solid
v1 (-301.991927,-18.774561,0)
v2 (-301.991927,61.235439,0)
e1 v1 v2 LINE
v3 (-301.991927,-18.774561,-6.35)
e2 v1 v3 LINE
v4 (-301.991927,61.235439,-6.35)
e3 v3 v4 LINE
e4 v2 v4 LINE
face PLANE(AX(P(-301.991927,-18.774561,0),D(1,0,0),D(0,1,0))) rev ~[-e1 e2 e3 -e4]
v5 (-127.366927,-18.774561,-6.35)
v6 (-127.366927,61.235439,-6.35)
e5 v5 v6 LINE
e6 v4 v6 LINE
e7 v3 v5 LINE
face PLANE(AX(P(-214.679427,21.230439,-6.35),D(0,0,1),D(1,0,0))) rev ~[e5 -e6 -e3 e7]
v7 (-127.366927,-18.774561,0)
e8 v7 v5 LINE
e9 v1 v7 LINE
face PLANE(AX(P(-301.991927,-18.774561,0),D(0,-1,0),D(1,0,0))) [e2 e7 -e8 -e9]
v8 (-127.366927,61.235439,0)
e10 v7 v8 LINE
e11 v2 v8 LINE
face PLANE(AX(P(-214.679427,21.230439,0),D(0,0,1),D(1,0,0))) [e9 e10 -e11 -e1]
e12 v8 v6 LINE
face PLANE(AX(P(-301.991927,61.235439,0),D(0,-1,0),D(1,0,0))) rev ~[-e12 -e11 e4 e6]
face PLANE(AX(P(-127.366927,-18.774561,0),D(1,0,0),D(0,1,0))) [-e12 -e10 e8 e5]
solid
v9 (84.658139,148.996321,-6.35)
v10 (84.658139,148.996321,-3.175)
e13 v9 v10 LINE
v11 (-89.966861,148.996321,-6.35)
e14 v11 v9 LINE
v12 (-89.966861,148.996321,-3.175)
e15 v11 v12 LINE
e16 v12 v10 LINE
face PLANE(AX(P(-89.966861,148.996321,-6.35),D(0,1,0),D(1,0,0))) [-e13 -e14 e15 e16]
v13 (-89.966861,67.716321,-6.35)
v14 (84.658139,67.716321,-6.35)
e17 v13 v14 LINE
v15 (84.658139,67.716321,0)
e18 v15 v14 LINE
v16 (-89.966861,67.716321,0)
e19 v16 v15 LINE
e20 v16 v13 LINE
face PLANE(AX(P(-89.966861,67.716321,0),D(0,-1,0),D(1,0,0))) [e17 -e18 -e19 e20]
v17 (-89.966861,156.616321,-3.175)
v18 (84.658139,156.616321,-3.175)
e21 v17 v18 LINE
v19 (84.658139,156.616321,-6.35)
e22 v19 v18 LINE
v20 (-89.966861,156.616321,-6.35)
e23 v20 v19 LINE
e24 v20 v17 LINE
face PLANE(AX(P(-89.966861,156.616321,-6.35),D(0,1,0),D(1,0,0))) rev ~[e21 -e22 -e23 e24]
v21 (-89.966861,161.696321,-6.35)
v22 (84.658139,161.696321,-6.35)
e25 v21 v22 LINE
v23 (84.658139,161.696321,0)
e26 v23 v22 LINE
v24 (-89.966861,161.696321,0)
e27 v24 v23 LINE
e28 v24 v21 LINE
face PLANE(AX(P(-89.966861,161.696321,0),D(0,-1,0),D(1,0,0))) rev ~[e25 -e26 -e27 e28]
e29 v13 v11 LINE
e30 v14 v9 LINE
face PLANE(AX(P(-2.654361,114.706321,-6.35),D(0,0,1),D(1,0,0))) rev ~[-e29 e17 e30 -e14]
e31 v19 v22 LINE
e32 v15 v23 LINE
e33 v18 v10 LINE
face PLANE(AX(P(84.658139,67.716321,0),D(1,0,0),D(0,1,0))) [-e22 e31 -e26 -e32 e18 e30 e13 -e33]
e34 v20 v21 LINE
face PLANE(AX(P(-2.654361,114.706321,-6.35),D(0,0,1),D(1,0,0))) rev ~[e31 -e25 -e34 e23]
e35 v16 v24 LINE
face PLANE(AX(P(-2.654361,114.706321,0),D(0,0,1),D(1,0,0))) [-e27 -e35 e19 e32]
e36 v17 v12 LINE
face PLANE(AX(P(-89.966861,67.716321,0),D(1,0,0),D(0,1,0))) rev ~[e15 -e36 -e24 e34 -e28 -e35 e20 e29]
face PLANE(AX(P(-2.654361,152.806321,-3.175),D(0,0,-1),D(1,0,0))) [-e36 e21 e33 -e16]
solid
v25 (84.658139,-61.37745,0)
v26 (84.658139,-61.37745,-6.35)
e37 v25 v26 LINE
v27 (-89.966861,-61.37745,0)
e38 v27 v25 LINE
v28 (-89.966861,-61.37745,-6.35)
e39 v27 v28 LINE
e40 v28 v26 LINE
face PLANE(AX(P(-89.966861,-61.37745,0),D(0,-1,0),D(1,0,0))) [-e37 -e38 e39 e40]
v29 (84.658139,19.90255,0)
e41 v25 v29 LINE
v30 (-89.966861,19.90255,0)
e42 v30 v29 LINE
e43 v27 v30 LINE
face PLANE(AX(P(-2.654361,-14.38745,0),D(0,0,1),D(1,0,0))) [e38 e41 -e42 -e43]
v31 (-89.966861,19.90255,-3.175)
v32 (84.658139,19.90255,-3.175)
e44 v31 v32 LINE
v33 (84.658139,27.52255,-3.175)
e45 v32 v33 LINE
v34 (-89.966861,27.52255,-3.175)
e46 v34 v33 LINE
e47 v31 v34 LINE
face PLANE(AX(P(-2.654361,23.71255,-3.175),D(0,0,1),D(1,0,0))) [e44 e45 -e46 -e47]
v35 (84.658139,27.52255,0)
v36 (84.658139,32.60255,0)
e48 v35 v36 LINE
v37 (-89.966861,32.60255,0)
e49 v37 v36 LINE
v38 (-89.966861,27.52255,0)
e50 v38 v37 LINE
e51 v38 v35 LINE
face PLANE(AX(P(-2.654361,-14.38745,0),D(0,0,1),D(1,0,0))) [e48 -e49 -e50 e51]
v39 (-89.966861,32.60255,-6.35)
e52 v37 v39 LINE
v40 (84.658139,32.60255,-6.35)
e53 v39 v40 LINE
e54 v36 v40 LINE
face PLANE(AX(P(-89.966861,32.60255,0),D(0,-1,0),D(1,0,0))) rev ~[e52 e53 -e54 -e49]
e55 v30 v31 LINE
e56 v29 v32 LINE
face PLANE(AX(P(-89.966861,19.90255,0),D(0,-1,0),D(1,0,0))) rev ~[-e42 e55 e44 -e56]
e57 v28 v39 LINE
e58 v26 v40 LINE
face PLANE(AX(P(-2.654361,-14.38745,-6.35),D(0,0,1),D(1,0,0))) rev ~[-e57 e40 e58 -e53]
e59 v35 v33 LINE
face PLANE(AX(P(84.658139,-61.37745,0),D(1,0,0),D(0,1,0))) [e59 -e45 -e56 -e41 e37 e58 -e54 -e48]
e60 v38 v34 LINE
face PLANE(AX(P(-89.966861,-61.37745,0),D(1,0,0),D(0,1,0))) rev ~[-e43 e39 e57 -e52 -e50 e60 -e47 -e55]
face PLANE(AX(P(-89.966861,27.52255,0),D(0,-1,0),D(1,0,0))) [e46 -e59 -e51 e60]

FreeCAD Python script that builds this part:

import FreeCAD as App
import Part
import Sketcher
Q = App.Units.Quantity

doc = App.newDocument("Part")
body = doc.addObject("PartDesign::Body", "Body")
body.AllowCompound = True

sketch1 = body.newObject("Sketcher::SketchObject", "Sketch")
sketch1.AttachmentSupport = (doc.getObject("XY_Plane"), [""])
sketch1.MapMode = "FlatFace"
sketch1.addGeometry(Part.LineSegment(App.Vector(-90, 33, 0), App.Vector(-90, -61, 0)), False)
sketch1.addGeometry(Part.LineSegment(App.Vector(-90, -61, 0), App.Vector(85, -61, 0)), False)
sketch1.addGeometry(Part.LineSegment(App.Vector(85, -61, 0), App.Vector(85, 33, 0)), False)
sketch1.addGeometry(Part.LineSegment(App.Vector(85, 33, 0), App.Vector(-90, 33, 0)), False)
sketch1.addGeometry(Part.LineSegment(App.Vector(-90, 162, 0), App.Vector(-90, 68, 0)), False)
sketch1.addGeometry(Part.LineSegment(App.Vector(-90, 68, 0), App.Vector(85, 68, 0)), False)
sketch1.addGeometry(Part.LineSegment(App.Vector(85, 68, 0), App.Vector(85, 162, 0)), False)
sketch1.addGeometry(Part.LineSegment(App.Vector(85, 162, 0), App.Vector(-90, 162, 0)), False)
sketch1.addConstraint(Sketcher.Constraint("Coincident", 0, 2, 1, 1))
sketch1.addConstraint(Sketcher.Constraint("Coincident", 1, 2, 2, 1))
sketch1.addConstraint(Sketcher.Constraint("Coincident", 2, 2, 3, 1))
sketch1.addConstraint(Sketcher.Constraint("Coincident", 3, 2, 0, 1))
sketch1.addConstraint(Sketcher.Constraint("Coincident", 4, 2, 5, 1))
sketch1.addConstraint(Sketcher.Constraint("Coincident", 5, 2, 6, 1))
sketch1.addConstraint(Sketcher.Constraint("Coincident", 6, 2, 7, 1))
sketch1.addConstraint(Sketcher.Constraint("Coincident", 7, 2, 4, 1))
sketch1.addConstraint(Sketcher.Constraint("Vertical", 0))
sketch1.addConstraint(Sketcher.Constraint("Horizontal", 1))
sketch1.addConstraint(Sketcher.Constraint("Vertical", 2))
sketch1.addConstraint(Sketcher.Constraint("Horizontal", 3))
sketch1.addConstraint(Sketcher.Constraint("Vertical", 4))
sketch1.addConstraint(Sketcher.Constraint("Horizontal", 5))
sketch1.addConstraint(Sketcher.Constraint("Vertical", 6))
sketch1.addConstraint(Sketcher.Constraint("Horizontal", 7))
sketch1.addConstraint(Sketcher.Constraint("Vertical", 3, 2, 4, 2))
sketch1.addConstraint(Sketcher.Constraint("Vertical", 2, 2, 5, 2))
sketch1.addConstraint(Sketcher.Constraint("Equal", 2, 4))
sketch1.addConstraint(Sketcher.Constraint("DistanceY", 0, 2, 0, 1, Q("3.7 in")))
sketch1.addConstraint(Sketcher.Constraint("DistanceX", 1, 1, 1, 2, Q("6.875 in")))
sketch1.addConstraint(Sketcher.Constraint("DistanceX", 0, 2, -1, 1, 89.966861))
sketch1.addConstraint(Sketcher.Constraint("DistanceY", 0, 2, -1, 1, 61.37745))
sketch1.addConstraint(Sketcher.Constraint("DistanceY", -1, 1, 4, 2, 67.716321))
pad1 = body.newObject("PartDesign::Pad", "Pad")
pad1.Profile = sketch1
pad1.Length = Q("0.25 in")
pad1.Reversed = True

sketch2 = body.newObject("Sketcher::SketchObject", "Sketch001")
sketch2.AttachmentSupport = (doc.getObject("XY_Plane"), [""])
sketch2.MapMode = "FlatFace"
sketch2.addGeometry(Part.LineSegment(App.Vector(-90, 28, 0), App.Vector(-90, 20, 0)), False)
sketch2.addGeometry(Part.LineSegment(App.Vector(-90, 20, 0), App.Vector(85, 20, 0)), False)
sketch2.addGeometry(Part.LineSegment(App.Vector(85, 20, 0), App.Vector(85, 28, 0)), False)
sketch2.addGeometry(Part.LineSegment(App.Vector(85, 28, 0), App.Vector(-90, 28, 0)), False)
sketch2.addConstraint(Sketcher.Constraint("Coincident", 0, 2, 1, 1))
sketch2.addConstraint(Sketcher.Constraint("Coincident", 1, 2, 2, 1))
sketch2.addConstraint(Sketcher.Constraint("Coincident", 2, 2, 3, 1))
sketch2.addConstraint(Sketcher.Constraint("Coincident", 3, 2, 0, 1))
sketch2.addConstraint(Sketcher.Constraint("Vertical", 0))
sketch2.addConstraint(Sketcher.Constraint("Horizontal", 1))
sketch2.addConstraint(Sketcher.Constraint("Vertical", 2))
sketch2.addConstraint(Sketcher.Constraint("Horizontal", 3))
sketch2.addConstraint(Sketcher.Constraint("DistanceY", 0, 2, 0, 1, Q("0.3 in")))
sketch2.addConstraint(Sketcher.Constraint("DistanceX", 1, 1, 1, 2, Q("6.875 in")))
sketch2.addConstraint(Sketcher.Constraint("DistanceX", 0, 2, -1, 1, 89.966861))
sketch2.addConstraint(Sketcher.Constraint("DistanceY", -1, 1, 0, 2, 19.90255))
pocket1 = body.newObject("PartDesign::Pocket", "Pocket")
pocket1.Profile = sketch2
pocket1.Length = Q("0.125 in")

sketch3 = body.newObject("Sketcher::SketchObject", "Sketch002")
sketch3.AttachmentSupport = (doc.getObject("XY_Plane"), [""])
sketch3.MapMode = "FlatFace"
sketch3.AttachmentOffset = App.Placement(App.Vector(0, 0, -0.25 * 25.4), App.Rotation())
sketch3.addGeometry(Part.LineSegment(App.Vector(-90, 149, 0), App.Vector(-90, 157, 0)), False)
sketch3.addGeometry(Part.LineSegment(App.Vector(-90, 157, 0), App.Vector(85, 157, 0)), False)
sketch3.addGeometry(Part.LineSegment(App.Vector(85, 157, 0), App.Vector(85, 149, 0)), False)
sketch3.addGeometry(Part.LineSegment(App.Vector(85, 149, 0), App.Vector(-90, 149, 0)), False)
sketch3.addConstraint(Sketcher.Constraint("Coincident", 0, 2, 1, 1))
sketch3.addConstraint(Sketcher.Constraint("Coincident", 1, 2, 2, 1))
sketch3.addConstraint(Sketcher.Constraint("Coincident", 2, 2, 3, 1))
sketch3.addConstraint(Sketcher.Constraint("Coincident", 3, 2, 0, 1))
sketch3.addConstraint(Sketcher.Constraint("Vertical", 0))
sketch3.addConstraint(Sketcher.Constraint("Horizontal", 1))
sketch3.addConstraint(Sketcher.Constraint("Vertical", 2))
sketch3.addConstraint(Sketcher.Constraint("Horizontal", 3))
sketch3.addConstraint(Sketcher.Constraint("DistanceY", 0, 1, 0, 2, Q("0.3 in")))
sketch3.addConstraint(Sketcher.Constraint("DistanceX", 1, 1, 1, 2, Q("6.875 in")))
sketch3.addConstraint(Sketcher.Constraint("DistanceX", 0, 2, -1, 1, 89.966861))
sketch3.addConstraint(Sketcher.Constraint("DistanceY", -1, 1, 0, 2, 156.616321))
pocket2 = body.newObject("PartDesign::Pocket", "Pocket001")
pocket2.Profile = sketch3
pocket2.Length = Q("0.125 in")
pocket2.Reversed = True
body2 = doc.addObject("PartDesign::Body", "Body001")

sketch4 = body2.newObject("Sketcher::SketchObject", "Sketch003")
sketch4.AttachmentSupport = (doc.getObject("XY_Plane001"), [""])
sketch4.MapMode = "FlatFace"
sketch4.addGeometry(Part.LineSegment(App.Vector(-302, 61, 0), App.Vector(-302, -19, 0)), False)
sketch4.addGeometry(Part.LineSegment(App.Vector(-302, -19, 0), App.Vector(-127, -19, 0)), False)
sketch4.addGeometry(Part.LineSegment(App.Vector(-127, -19, 0), App.Vector(-127, 61, 0)), False)
sketch4.addGeometry(Part.LineSegment(App.Vector(-127, 61, 0), App.Vector(-302, 61, 0)), False)
sketch4.addConstraint(Sketcher.Constraint("Coincident", 0, 2, 1, 1))
sketch4.addConstraint(Sketcher.Constraint("Coincident", 1, 2, 2, 1))
sketch4.addConstraint(Sketcher.Constraint("Coincident", 2, 2, 3, 1))
sketch4.addConstraint(Sketcher.Constraint("Coincident", 3, 2, 0, 1))
sketch4.addConstraint(Sketcher.Constraint("Vertical", 0))
sketch4.addConstraint(Sketcher.Constraint("Horizontal", 1))
sketch4.addConstraint(Sketcher.Constraint("Vertical", 2))
sketch4.addConstraint(Sketcher.Constraint("Horizontal", 3))
sketch4.addConstraint(Sketcher.Constraint("DistanceY", 0, 2, 0, 1, Q("3.15 in")))
sketch4.addConstraint(Sketcher.Constraint("DistanceX", 1, 1, 1, 2, Q("6.875 in")))
sketch4.addConstraint(Sketcher.Constraint("DistanceY", 0, 2, -1, 1, 18.774561))
sketch4.addConstraint(Sketcher.Constraint("DistanceX", 0, 2, -1, 1, 301.991927))
pad2 = body2.newObject("PartDesign::Pad", "Pad001")
pad2.Profile = sketch4
pad2.Length = Q("0.25 in")
pad2.Reversed = True

doc.recompute()
